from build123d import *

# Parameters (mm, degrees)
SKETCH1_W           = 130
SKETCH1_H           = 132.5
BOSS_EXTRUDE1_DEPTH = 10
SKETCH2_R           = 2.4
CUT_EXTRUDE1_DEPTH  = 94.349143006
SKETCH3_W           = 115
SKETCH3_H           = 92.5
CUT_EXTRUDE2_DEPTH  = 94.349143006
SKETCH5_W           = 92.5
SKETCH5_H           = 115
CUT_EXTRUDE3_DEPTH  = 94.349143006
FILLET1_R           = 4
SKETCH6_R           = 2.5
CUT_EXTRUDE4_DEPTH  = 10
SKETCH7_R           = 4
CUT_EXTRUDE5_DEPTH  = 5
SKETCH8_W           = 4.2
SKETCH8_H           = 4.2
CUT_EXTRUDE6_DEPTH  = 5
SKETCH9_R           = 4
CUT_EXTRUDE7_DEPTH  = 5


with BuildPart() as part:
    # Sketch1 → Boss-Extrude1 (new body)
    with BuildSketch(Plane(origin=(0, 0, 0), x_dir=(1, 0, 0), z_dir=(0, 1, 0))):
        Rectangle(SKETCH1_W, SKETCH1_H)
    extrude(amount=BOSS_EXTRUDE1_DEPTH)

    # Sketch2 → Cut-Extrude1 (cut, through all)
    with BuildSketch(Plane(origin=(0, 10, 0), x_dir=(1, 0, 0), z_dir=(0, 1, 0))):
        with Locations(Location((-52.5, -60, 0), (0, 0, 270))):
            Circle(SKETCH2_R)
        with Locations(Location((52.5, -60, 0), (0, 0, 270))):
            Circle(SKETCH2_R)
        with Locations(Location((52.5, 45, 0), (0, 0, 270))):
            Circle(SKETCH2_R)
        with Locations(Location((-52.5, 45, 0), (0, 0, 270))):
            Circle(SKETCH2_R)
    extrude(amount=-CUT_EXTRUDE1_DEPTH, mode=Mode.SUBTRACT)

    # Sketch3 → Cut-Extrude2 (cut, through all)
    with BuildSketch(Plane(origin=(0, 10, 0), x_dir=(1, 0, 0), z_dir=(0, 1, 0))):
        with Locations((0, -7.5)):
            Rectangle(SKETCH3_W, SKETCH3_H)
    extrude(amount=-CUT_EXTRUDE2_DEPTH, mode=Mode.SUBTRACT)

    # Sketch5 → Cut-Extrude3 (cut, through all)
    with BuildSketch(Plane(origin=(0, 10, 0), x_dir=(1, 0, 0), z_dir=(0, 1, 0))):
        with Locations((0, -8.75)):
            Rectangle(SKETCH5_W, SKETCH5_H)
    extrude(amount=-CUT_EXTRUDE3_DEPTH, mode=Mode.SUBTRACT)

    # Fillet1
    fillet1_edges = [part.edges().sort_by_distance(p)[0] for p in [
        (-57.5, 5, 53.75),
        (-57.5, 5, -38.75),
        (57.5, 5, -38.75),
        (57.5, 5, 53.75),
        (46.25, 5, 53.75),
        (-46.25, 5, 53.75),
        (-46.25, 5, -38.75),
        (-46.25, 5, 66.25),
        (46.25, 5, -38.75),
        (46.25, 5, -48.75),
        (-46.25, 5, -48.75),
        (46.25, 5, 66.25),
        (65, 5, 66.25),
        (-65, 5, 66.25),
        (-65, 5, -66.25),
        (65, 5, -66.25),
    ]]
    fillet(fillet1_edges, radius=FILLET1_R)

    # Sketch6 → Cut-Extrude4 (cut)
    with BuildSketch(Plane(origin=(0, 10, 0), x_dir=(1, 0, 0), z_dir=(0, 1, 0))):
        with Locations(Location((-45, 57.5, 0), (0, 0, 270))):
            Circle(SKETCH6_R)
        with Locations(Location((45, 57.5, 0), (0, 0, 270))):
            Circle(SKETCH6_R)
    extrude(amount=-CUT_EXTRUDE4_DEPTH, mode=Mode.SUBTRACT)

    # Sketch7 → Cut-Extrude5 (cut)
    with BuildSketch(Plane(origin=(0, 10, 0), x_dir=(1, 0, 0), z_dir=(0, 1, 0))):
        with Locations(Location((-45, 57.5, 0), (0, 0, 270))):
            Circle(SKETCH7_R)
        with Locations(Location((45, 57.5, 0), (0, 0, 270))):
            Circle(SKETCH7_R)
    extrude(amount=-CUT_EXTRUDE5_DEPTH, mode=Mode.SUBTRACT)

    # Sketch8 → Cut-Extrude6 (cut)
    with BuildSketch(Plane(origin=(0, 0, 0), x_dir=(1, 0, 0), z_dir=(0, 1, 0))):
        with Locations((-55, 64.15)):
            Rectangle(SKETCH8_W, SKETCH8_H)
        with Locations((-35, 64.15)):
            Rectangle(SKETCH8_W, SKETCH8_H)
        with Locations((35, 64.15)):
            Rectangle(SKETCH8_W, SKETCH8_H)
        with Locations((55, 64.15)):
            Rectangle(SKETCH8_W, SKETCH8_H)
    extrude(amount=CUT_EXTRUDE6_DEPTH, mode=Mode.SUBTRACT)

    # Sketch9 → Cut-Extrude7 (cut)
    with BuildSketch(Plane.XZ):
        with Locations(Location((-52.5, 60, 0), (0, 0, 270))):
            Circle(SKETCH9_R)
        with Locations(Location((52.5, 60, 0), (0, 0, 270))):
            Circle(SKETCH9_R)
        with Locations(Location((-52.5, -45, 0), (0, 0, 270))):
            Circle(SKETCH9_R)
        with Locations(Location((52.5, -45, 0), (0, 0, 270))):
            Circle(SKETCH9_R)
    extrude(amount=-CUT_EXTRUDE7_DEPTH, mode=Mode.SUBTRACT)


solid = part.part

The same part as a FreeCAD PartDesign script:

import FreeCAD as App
import Part
import Sketcher

V = App.Vector
Q = App.Units.Quantity


def edges_at(feature, points):
    """Names of the edges that pass closest to the given points."""
    edges = feature.Shape.Edges
    near = lambda p: min(range(len(edges)), key=lambda i: edges[i].distToShape(Part.Vertex(*p))[0])
    return sorted({f"Edge{near(p) + 1}" for p in points})

doc = App.newDocument("Part")
params = doc.addObject("Spreadsheet::Sheet", "Params")
for row, (alias, value) in enumerate([
    ("sketch1_width", "130 mm"),
    ("sketch1_height", "132.5 mm"),
    ("pad1_length", "10 mm"),
    ("sketch2_diameter", "4.8 mm"),
    ("sketch3_width", "115 mm"),
    ("sketch3_height", "92.5 mm"),
    ("sketch4_height", "115 mm"),
    ("sketch4_width", "92.5 mm"),
    ("fillet_radius", "4 mm"),
    ("sketch5_diameter", "5 mm"),
    ("pocket4_length", "10 mm"),
    ("sketch6_diameter", "8 mm"),
    ("pocket5_length", "5 mm"),
    ("sketch7_width", "4.2 mm"),
    ("pocket6_length", "5 mm"),
    ("sketch8_diameter", "8 mm"),
    ("pocket7_length", "5 mm"),
], start=1):
    params.set(f"A{row}", alias)
    params.set(f"B{row}", "=" + value)
    params.setAlias(f"B{row}", alias)

body = doc.addObject("PartDesign::Body", "Body")

sketch1 = body.newObject("Sketcher::SketchObject", "Sketch")
sketch1.AttachmentSupport = (doc.getObject("XZ_Plane"), [""])
sketch1.MapMode = "FlatFace"
sketch1.addGeometry(Part.LineSegment(V(-65, -66.25, 0), V(-65, 66.25, 0)), False)
sketch1.addGeometry(Part.LineSegment(V(-65, 66.25, 0), V(65, 66.25, 0)), False)
sketch1.addGeometry(Part.LineSegment(V(65, 66.25, 0), V(65, -66.25, 0)), False)
sketch1.addGeometry(Part.LineSegment(V(65, -66.25, 0), V(-65, -66.25, 0)), False)
sketch1.addConstraint(Sketcher.Constraint("Coincident", 0, 2, 1, 1))
sketch1.addConstraint(Sketcher.Constraint("Coincident", 1, 2, 2, 1))
sketch1.addConstraint(Sketcher.Constraint("Coincident", 2, 2, 3, 1))
sketch1.addConstraint(Sketcher.Constraint("Coincident", 3, 2, 0, 1))
sketch1.addConstraint(Sketcher.Constraint("Vertical", 0))
sketch1.addConstraint(Sketcher.Constraint("Horizontal", 1))
sketch1.addConstraint(Sketcher.Constraint("Vertical", 2))
sketch1.addConstraint(Sketcher.Constraint("Horizontal", 3))
sketch1.addConstraint(Sketcher.Constraint("Symmetric", 0, 2, 2, 2, -1, 1))
sketch1.addConstraint(Sketcher.Constraint("DistanceX", 1, 1, 1, 2, Q("130 mm")))
sketch1.addConstraint(Sketcher.Constraint("DistanceY", 0, 1, 0, 2, Q("132.5 mm")))
sketch1.setExpression("Constraints[9]", "Params.sketch1_width")
sketch1.setExpression("Constraints[10]", "Params.sketch1_height")
pad1 = body.newObject("PartDesign::Pad", "Pad")
pad1.Profile = sketch1
pad1.setExpression("Length", "Params.pad1_length")
pad1.Reversed = True

sketch2 = body.newObject("Sketcher::SketchObject", "Sketch001")
sketch2.AttachmentSupport = (doc.getObject("XZ_Plane"), [""])
sketch2.MapMode = "FlatFace"
sketch2.AttachmentOffset = App.Placement(V(0, 0, -10), App.Rotation())
sketch2.addGeometry(Part.Circle(V(-52.5, 60, 0), V(0, 0, 1), 2.4), False)
sketch2.addGeometry(Part.Circle(V(52.5, 60, 0), V(0, 0, 1), 2.4), False)
sketch2.addGeometry(Part.Circle(V(52.5, -45, 0), V(0, 0, 1), 2.4), False)
sketch2.addGeometry(Part.Circle(V(-52.5, -45, 0), V(0, 0, 1), 2.4), False)
sketch2.addConstraint(Sketcher.Constraint("Equal", 0, 1))
sketch2.addConstraint(Sketcher.Constraint("Equal", 1, 2))
sketch2.addConstraint(Sketcher.Constraint("Equal", 2, 3))
sketch2.addConstraint(Sketcher.Constraint("Symmetric", 0, 3, 1, 3, -2))
sketch2.addConstraint(Sketcher.Constraint("Symmetric", 2, 3, 3, 3, -2))
sketch2.addConstraint(Sketcher.Constraint("Vertical", 1, 3, 2, 3))
sketch2.addConstraint(Sketcher.Constraint("Diameter", 0, Q("4.8 mm")))
sketch2.addConstraint(Sketcher.Constraint("DistanceY", -1, 1, 0, 3, Q("60 mm")))
sketch2.addConstraint(Sketcher.Constraint("DistanceY", 2, 3, -1, 1, Q("45 mm")))
sketch2.addConstraint(Sketcher.Constraint("DistanceX", 0, 3, 1, 3, Q("105 mm")))
sketch2.setExpression("Constraints[6]", "Params.sketch2_diameter")
pocket1 = body.newObject("PartDesign::Pocket", "Pocket")
pocket1.Profile = sketch2
pocket1.Type = "ThroughAll"
pocket1.Reversed = True

sketch3 = body.newObject("Sketcher::SketchObject", "Sketch002")
sketch3.AttachmentSupport = (doc.getObject("XZ_Plane"), [""])
sketch3.MapMode = "FlatFace"
sketch3.AttachmentOffset = App.Placement(V(0, 0, -10), App.Rotation())
sketch3.addGeometry(Part.LineSegment(V(-57.5, -38.75, 0), V(-57.5, 53.75, 0)), False)
sketch3.addGeometry(Part.LineSegment(V(-57.5, 53.75, 0), V(57.5, 53.75, 0)), False)
sketch3.addGeometry(Part.LineSegment(V(57.5, 53.75, 0), V(57.5, -38.75, 0)), False)
sketch3.addGeometry(Part.LineSegment(V(57.5, -38.75, 0), V(-57.5, -38.75, 0)), False)
sketch3.addConstraint(Sketcher.Constraint("Coincident", 0, 2, 1, 1))
sketch3.addConstraint(Sketcher.Constraint("Coincident", 1, 2, 2, 1))
sketch3.addConstraint(Sketcher.Constraint("Coincident", 2, 2, 3, 1))
sketch3.addConstraint(Sketcher.Constraint("Coincident", 3, 2, 0, 1))
sketch3.addConstraint(Sketcher.Constraint("Vertical", 0))
sketch3.addConstraint(Sketcher.Constraint("Horizontal", 1))
sketch3.addConstraint(Sketcher.Constraint("Vertical", 2))
sketch3.addConstraint(Sketcher.Constraint("Horizontal", 3))
sketch3.addConstraint(Sketcher.Constraint("DistanceX", 1, 1, 1, 2, Q("115 mm")))
sketch3.addConstraint(Sketcher.Constraint("DistanceY", 0, 1, 0, 2, Q("92.5 mm")))
sketch3.addConstraint(Sketcher.Constraint("DistanceX", 0, 2, -1, 1, Q("57.5 mm")))
sketch3.addConstraint(Sketcher.Constraint("DistanceY", -1, 1, 0, 2, Q("53.75 mm")))
sketch3.setExpression("Constraints[8]", "Params.sketch3_width")
sketch3.setExpression("Constraints[9]", "Params.sketch3_height")
pocket2 = body.newObject("PartDesign::Pocket", "Pocket001")
pocket2.Profile = sketch3
pocket2.Type = "ThroughAll"
pocket2.Reversed = True

sketch4 = body.newObject("Sketcher::SketchObject", "Sketch003")
sketch4.AttachmentSupport = (doc.getObject("XZ_Plane"), [""])
sketch4.MapMode = "FlatFace"
sketch4.AttachmentOffset = App.Placement(V(0, 0, -10), App.Rotation())
sketch4.addGeometry(Part.LineSegment(V(-46.25, -48.75, 0), V(-46.25, 66.25, 0)), False)
sketch4.addGeometry(Part.LineSegment(V(-46.25, 66.25, 0), V(46.25, 66.25, 0)), False)
sketch4.addGeometry(Part.LineSegment(V(46.25, 66.25, 0), V(46.25, -48.75, 0)), False)
sketch4.addGeometry(Part.LineSegment(V(46.25, -48.75, 0), V(-46.25, -48.75, 0)), False)
sketch4.addConstraint(Sketcher.Constraint("Coincident", 0, 2, 1, 1))
sketch4.addConstraint(Sketcher.Constraint("Coincident", 1, 2, 2, 1))
sketch4.addConstraint(Sketcher.Constraint("Coincident", 2, 2, 3, 1))
sketch4.addConstraint(Sketcher.Constraint("Coincident", 3, 2, 0, 1))
sketch4.addConstraint(Sketcher.Constraint("Vertical", 0))
sketch4.addConstraint(Sketcher.Constraint("Horizontal", 1))
sketch4.addConstraint(Sketcher.Constraint("Vertical", 2))
sketch4.addConstraint(Sketcher.Constraint("Horizontal", 3))
sketch4.addConstraint(Sketcher.Constraint("DistanceY", 0, 1, 0, 2, Q("115 mm")))
sketch4.addConstraint(Sketcher.Constraint("DistanceX", 1, 1, 1, 2, Q("92.5 mm")))
sketch4.addConstraint(Sketcher.Constraint("DistanceX", 0, 2, -1, 1, Q("46.25 mm")))
sketch4.addConstraint(Sketcher.Constraint("DistanceY", -1, 1, 0, 2, Q("66.25 mm")))
sketch4.setExpression("Constraints[8]", "Params.sketch4_height")
sketch4.setExpression("Constraints[9]", "Params.sketch4_width")
pocket3 = body.newObject("PartDesign::Pocket", "Pocket002")
pocket3.Profile = sketch4
pocket3.Type = "ThroughAll"
pocket3.Reversed = True
doc.recompute()

fillet = body.newObject("PartDesign::Fillet", "Fillet")
fillet.Base = (pocket3, edges_at(pocket3, [
    (-57.5, 5, 53.75),
    (-57.5, 5, -38.75),
    (57.5, 5, -38.75),
    (57.5, 5, 53.75),
    (46.25, 5, 53.75),
    (-46.25, 5, 53.75),
    (-46.25, 5, -38.75),
    (-46.25, 5, 66.25),
    (46.25, 5, -38.75),
    (46.25, 5, -48.75),
    (-46.25, 5, -48.75),
    (46.25, 5, 66.25),
    (65, 5, 66.25),
    (-65, 5, 66.25),
    (-65, 5, -66.25),
    (65, 5, -66.25),
]))
fillet.setExpression("Radius", "Params.fillet_radius")

sketch5 = body.newObject("Sketcher::SketchObject", "Sketch004")
sketch5.AttachmentSupport = (doc.getObject("XZ_Plane"), [""])
sketch5.MapMode = "FlatFace"
sketch5.AttachmentOffset = App.Placement(V(0, 0, -10), App.Rotation())
sketch5.addGeometry(Part.Circle(V(-45, -57.5, 0), V(0, 0, 1), 2.5), False)
sketch5.addGeometry(Part.Circle(V(45, -57.5, 0), V(0, 0, 1), 2.5), False)
sketch5.addConstraint(Sketcher.Constraint("Equal", 0, 1))
sketch5.addConstraint(Sketcher.Constraint("Symmetric", 0, 3, 1, 3, -2))
sketch5.addConstraint(Sketcher.Constraint("Diameter", 0, Q("5 mm")))
sketch5.addConstraint(Sketcher.Constraint("DistanceX", 0, 3, -1, 1, Q("45 mm")))
sketch5.addConstraint(Sketcher.Constraint("DistanceY", 0, 3, -1, 1, Q("57.5 mm")))
sketch5.setExpression("Constraints[2]", "Params.sketch5_diameter")
pocket4 = body.newObject("PartDesign::Pocket", "Pocket003")
pocket4.Profile = sketch5
pocket4.setExpression("Length", "Params.pocket4_length")
pocket4.Reversed = True

sketch6 = body.newObject("Sketcher::SketchObject", "Sketch005")
sketch6.AttachmentSupport = (doc.getObject("XZ_Plane"), [""])
sketch6.MapMode = "FlatFace"
sketch6.AttachmentOffset = App.Placement(V(0, 0, -10), App.Rotation())
sketch6.addGeometry(Part.Circle(V(-45, -57.5, 0), V(0, 0, 1), 4), False)
sketch6.addGeometry(Part.Circle(V(45, -57.5, 0), V(0, 0, 1), 4), False)
sketch6.addConstraint(Sketcher.Constraint("Equal", 0, 1))
sketch6.addConstraint(Sketcher.Constraint("Symmetric", 0, 3, 1, 3, -2))
sketch6.addConstraint(Sketcher.Constraint("Diameter", 0, Q("8 mm")))
sketch6.addConstraint(Sketcher.Constraint("DistanceX", 0, 3, -1, 1, Q("45 mm")))
sketch6.addConstraint(Sketcher.Constraint("DistanceY", 0, 3, -1, 1, Q("57.5 mm")))
sketch6.setExpression("Constraints[2]", "Params.sketch6_diameter")
pocket5 = body.newObject("PartDesign::Pocket", "Pocket004")
pocket5.Profile = sketch6
pocket5.setExpression("Length", "Params.pocket5_length")
pocket5.Reversed = True

sketch7 = body.newObject("Sketcher::SketchObject", "Sketch006")
sketch7.AttachmentSupport = (doc.getObject("XZ_Plane"), [""])
sketch7.MapMode = "FlatFace"
sketch7.addGeometry(Part.LineSegment(V(-57.1, -66.25, 0), V(-57.1, -62.05, 0)), False)
sketch7.addGeometry(Part.LineSegment(V(-57.1, -62.05, 0), V(-52.9, -62.05, 0)), False)
sketch7.addGeometry(Part.LineSegment(V(-52.9, -62.05, 0), V(-52.9, -66.25, 0)), False)
sketch7.addGeometry(Part.LineSegment(V(-52.9, -66.25, 0), V(-57.1, -66.25, 0)), False)
sketch7.addGeometry(Part.LineSegment(V(-37.1, -66.25, 0), V(-37.1, -62.05, 0)), False)
sketch7.addGeometry(Part.LineSegment(V(-37.1, -62.05, 0), V(-32.9, -62.05, 0)), False)
sketch7.addGeometry(Part.LineSegment(V(-32.9, -62.05, 0), V(-32.9, -66.25, 0)), False)
sketch7.addGeometry(Part.LineSegment(V(-32.9, -66.25, 0), V(-37.1, -66.25, 0)), False)
sketch7.addGeometry(Part.LineSegment(V(32.9, -66.25, 0), V(32.9, -62.05, 0)), False)
sketch7.addGeometry(Part.LineSegment(V(32.9, -62.05, 0), V(37.1, -62.05, 0)), False)
sketch7.addGeometry(Part.LineSegment(V(37.1, -62.05, 0), V(37.1, -66.25, 0)), False)
sketch7.addGeometry(Part.LineSegment(V(37.1, -66.25, 0), V(32.9, -66.25, 0)), False)
sketch7.addGeometry(Part.LineSegment(V(52.9, -66.25, 0), V(52.9, -62.05, 0)), False)
sketch7.addGeometry(Part.LineSegment(V(52.9, -62.05, 0), V(57.1, -62.05, 0)), False)
sketch7.addGeometry(Part.LineSegment(V(57.1, -62.05, 0), V(57.1, -66.25, 0)), False)
sketch7.addGeometry(Part.LineSegment(V(57.1, -66.25, 0), V(52.9, -66.25, 0)), False)
sketch7.addConstraint(Sketcher.Constraint("Coincident", 0, 2, 1, 1))
sketch7.addConstraint(Sketcher.Constraint("Coincident", 1, 2, 2, 1))
sketch7.addConstraint(Sketcher.Constraint("Coincident", 2, 2, 3, 1))
sketch7.addConstraint(Sketcher.Constraint("Coincident", 3, 2, 0, 1))
sketch7.addConstraint(Sketcher.Constraint("Coincident", 4, 2, 5, 1))
sketch7.addConstraint(Sketcher.Constraint("Coincident", 5, 2, 6, 1))
sketch7.addConstraint(Sketcher.Constraint("Coincident", 6, 2, 7, 1))
sketch7.addConstraint(Sketcher.Constraint("Coincident", 7, 2, 4, 1))
sketch7.addConstraint(Sketcher.Constraint("Coincident", 8, 2, 9, 1))
sketch7.addConstraint(Sketcher.Constraint("Coincident", 9, 2, 10, 1))
sketch7.addConstraint(Sketcher.Constraint("Coincident", 10, 2, 11, 1))
sketch7.addConstraint(Sketcher.Constraint("Coincident", 11, 2, 8, 1))
sketch7.addConstraint(Sketcher.Constraint("Coincident", 12, 2, 13, 1))
sketch7.addConstraint(Sketcher.Constraint("Coincident", 13, 2, 14, 1))
sketch7.addConstraint(Sketcher.Constraint("Coincident", 14, 2, 15, 1))
sketch7.addConstraint(Sketcher.Constraint("Coincident", 15, 2, 12, 1))
sketch7.addConstraint(Sketcher.Constraint("Vertical", 0))
sketch7.addConstraint(Sketcher.Constraint("Horizontal", 1))
sketch7.addConstraint(Sketcher.Constraint("Vertical", 2))
sketch7.addConstraint(Sketcher.Constraint("Horizontal", 3))
sketch7.addConstraint(Sketcher.Constraint("Vertical", 4))
sketch7.addConstraint(Sketcher.Constraint("Horizontal", 5))
sketch7.addConstraint(Sketcher.Constraint("Vertical", 6))
sketch7.addConstraint(Sketcher.Constraint("Horizontal", 7))
sketch7.addConstraint(Sketcher.Constraint("Vertical", 8))
sketch7.addConstraint(Sketcher.Constraint("Horizontal", 9))
sketch7.addConstraint(Sketcher.Constraint("Vertical", 10))
sketch7.addConstraint(Sketcher.Constraint("Horizontal", 11))
sketch7.addConstraint(Sketcher.Constraint("Vertical", 12))
sketch7.addConstraint(Sketcher.Constraint("Horizontal", 13))
sketch7.addConstraint(Sketcher.Constraint("Vertical", 14))
sketch7.addConstraint(Sketcher.Constraint("Horizontal", 15))
sketch7.addConstraint(Sketcher.Constraint("Symmetric", 5, 2, 8, 2, -2))
sketch7.addConstraint(Sketcher.Constraint("Symmetric", 7, 2, 10, 2, -2))
sketch7.addConstraint(Sketcher.Constraint("Symmetric", 1, 2, 12, 2, -2))
sketch7.addConstraint(Sketcher.Constraint("Symmetric", 3, 2, 14, 2, -2))
sketch7.addConstraint(Sketcher.Constraint("Horizontal", 1, 2, 4, 2))
sketch7.addConstraint(Sketcher.Constraint("Horizontal", 3, 2, 6, 2))
sketch7.addConstraint(Sketcher.Constraint("Equal", 3, 5))
sketch7.addConstraint(Sketcher.Constraint("Equal", 15, 0))
sketch7.addConstraint(Sketcher.Constraint("DistanceX", 1, 1, 1, 2, Q("4.2 mm")))
sketch7.addConstraint(Sketcher.Constraint("DistanceX", 0, 2, 4, 2, Q("20 mm")))
sketch7.addConstraint(Sketcher.Constraint("DistanceX", 4, 2, 8, 2, Q("70 mm")))
sketch7.addConstraint(Sketcher.Constraint("DistanceY", 0, 2, -1, 1, Q("62.05 mm")))
sketch7.setExpression("Constraints[40]", "Params.sketch7_width")
pocket6 = body.newObject("PartDesign::Pocket", "Pocket005")
pocket6.Profile = sketch7
pocket6.setExpression("Length", "Params.pocket6_length")

sketch8 = body.newObject("Sketcher::SketchObject", "Sketch007")
sketch8.AttachmentSupport = (doc.getObject("XZ_Plane"), [""])
sketch8.MapMode = "FlatFace"
sketch8.addGeometry(Part.Circle(V(-52.5, 60, 0), V(0, 0, 1), 4), False)
sketch8.addGeometry(Part.Circle(V(52.5, 60, 0), V(0, 0, 1), 4), False)
sketch8.addGeometry(Part.Circle(V(-52.5, -45, 0), V(0, 0, 1), 4), False)
sketch8.addGeometry(Part.Circle(V(52.5, -45, 0), V(0, 0, 1), 4), False)
sketch8.addConstraint(Sketcher.Constraint("Equal", 0, 1))
sketch8.addConstraint(Sketcher.Constraint("Equal", 1, 2))
sketch8.addConstraint(Sketcher.Constraint("Equal", 2, 3))
sketch8.addConstraint(Sketcher.Constraint("Symmetric", 0, 3, 1, 3, -2))
sketch8.addConstraint(Sketcher.Constraint("Symmetric", 2, 3, 3, 3, -2))
sketch8.addConstraint(Sketcher.Constraint("Vertical", 0, 3, 2, 3))
sketch8.addConstraint(Sketcher.Constraint("Diameter", 0, Q("8 mm")))
sketch8.addConstraint(Sketcher.Constraint("DistanceY", -1, 1, 0, 3, Q("60 mm")))
sketch8.addConstraint(Sketcher.Constraint("DistanceY", 2, 3, -1, 1, Q("45 mm")))
sketch8.addConstraint(Sketcher.Constraint("DistanceX", 0, 3, 1, 3, Q("105 mm")))
sketch8.setExpression("Constraints[6]", "Params.sketch8_diameter")
pocket7 = body.newObject("PartDesign::Pocket", "Pocket006")
pocket7.Profile = sketch8
pocket7.setExpression("Length", "Params.pocket7_length")

doc.recompute()
